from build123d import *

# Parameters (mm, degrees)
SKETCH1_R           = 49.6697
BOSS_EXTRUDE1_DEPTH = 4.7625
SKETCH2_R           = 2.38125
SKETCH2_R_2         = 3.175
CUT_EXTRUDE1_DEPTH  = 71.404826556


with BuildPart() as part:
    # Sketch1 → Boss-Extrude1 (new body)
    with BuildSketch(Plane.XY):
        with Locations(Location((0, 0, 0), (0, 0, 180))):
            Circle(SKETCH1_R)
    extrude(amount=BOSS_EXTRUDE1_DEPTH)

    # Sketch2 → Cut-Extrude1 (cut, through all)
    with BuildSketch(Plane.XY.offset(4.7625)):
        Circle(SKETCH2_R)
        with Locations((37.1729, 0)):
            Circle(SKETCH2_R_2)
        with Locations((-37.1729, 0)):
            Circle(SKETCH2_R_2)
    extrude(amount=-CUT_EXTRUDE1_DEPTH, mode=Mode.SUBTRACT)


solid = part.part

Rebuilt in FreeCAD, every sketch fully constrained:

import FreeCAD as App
import Part
import Sketcher
from FreeCAD import Vector
Q = App.Units.Quantity

doc = App.newDocument("Part")
body = doc.addObject("PartDesign::Body", "Body")

# Sketch on XY plane
sketch1 = doc.addObject("Sketcher::SketchObject", "Sketch")
body.addObject(sketch1)
sketch1.AttachmentSupport = (doc.XY_Plane, [""])
sketch1.MapMode = "FlatFace"
sketch1.addGeometry(Part.Circle(Vector(0, 0, 0), Vector(0, 0, 1), 49.6697), False)
sketch1.addConstraint([
    Sketcher.Constraint("Coincident", 0, 3, -1, 1),
    Sketcher.Constraint("Diameter", 0, Q("3.911 in")),
])
pad1 = doc.addObject("PartDesign::Pad", "Pad")
body.addObject(pad1)
pad1.Profile = sketch1
pad1.Length = Q("0.1875 in")

# Sketch on XY plane
sketch2 = doc.addObject("Sketcher::SketchObject", "Sketch001")
body.addObject(sketch2)
sketch2.AttachmentSupport = (doc.XY_Plane, [""])
sketch2.MapMode = "FlatFace"
sketch2.AttachmentOffset = App.Placement(Vector(0, 0, 0.1875 * 25.4), App.Rotation())
sketch2.addGeometry([
    Part.Circle(Vector(0, 0, 0), Vector(0, 0, 1), 2.38125),
    Part.Circle(Vector(37.1729, 0, 0), Vector(0, 0, 1), 3.175),
    Part.Circle(Vector(-37.1729, 0, 0), Vector(0, 0, 1), 3.175),
], False)
sketch2.addConstraint([
    Sketcher.Constraint("Coincident", 0, 3, -1, 1),
    Sketcher.Constraint("Equal", 1, 2),
    Sketcher.Constraint("Symmetric", 1, 3, 2, 3, -1, 1),
    Sketcher.Constraint("PointOnObject", 1, 3, -1),
    Sketcher.Constraint("Diameter", 1, Q("0.25 in")),
    Sketcher.Constraint("Diameter", 0, Q("0.1875 in")),
    Sketcher.Constraint("DistanceX", 2, 3, 1, 3, Q("2.927 in")),
])
pocket1 = doc.addObject("PartDesign::Pocket", "Pocket")
body.addObject(pocket1)
pocket1.Profile = sketch2
pocket1.Type = "ThroughAll"

doc.recompute()
